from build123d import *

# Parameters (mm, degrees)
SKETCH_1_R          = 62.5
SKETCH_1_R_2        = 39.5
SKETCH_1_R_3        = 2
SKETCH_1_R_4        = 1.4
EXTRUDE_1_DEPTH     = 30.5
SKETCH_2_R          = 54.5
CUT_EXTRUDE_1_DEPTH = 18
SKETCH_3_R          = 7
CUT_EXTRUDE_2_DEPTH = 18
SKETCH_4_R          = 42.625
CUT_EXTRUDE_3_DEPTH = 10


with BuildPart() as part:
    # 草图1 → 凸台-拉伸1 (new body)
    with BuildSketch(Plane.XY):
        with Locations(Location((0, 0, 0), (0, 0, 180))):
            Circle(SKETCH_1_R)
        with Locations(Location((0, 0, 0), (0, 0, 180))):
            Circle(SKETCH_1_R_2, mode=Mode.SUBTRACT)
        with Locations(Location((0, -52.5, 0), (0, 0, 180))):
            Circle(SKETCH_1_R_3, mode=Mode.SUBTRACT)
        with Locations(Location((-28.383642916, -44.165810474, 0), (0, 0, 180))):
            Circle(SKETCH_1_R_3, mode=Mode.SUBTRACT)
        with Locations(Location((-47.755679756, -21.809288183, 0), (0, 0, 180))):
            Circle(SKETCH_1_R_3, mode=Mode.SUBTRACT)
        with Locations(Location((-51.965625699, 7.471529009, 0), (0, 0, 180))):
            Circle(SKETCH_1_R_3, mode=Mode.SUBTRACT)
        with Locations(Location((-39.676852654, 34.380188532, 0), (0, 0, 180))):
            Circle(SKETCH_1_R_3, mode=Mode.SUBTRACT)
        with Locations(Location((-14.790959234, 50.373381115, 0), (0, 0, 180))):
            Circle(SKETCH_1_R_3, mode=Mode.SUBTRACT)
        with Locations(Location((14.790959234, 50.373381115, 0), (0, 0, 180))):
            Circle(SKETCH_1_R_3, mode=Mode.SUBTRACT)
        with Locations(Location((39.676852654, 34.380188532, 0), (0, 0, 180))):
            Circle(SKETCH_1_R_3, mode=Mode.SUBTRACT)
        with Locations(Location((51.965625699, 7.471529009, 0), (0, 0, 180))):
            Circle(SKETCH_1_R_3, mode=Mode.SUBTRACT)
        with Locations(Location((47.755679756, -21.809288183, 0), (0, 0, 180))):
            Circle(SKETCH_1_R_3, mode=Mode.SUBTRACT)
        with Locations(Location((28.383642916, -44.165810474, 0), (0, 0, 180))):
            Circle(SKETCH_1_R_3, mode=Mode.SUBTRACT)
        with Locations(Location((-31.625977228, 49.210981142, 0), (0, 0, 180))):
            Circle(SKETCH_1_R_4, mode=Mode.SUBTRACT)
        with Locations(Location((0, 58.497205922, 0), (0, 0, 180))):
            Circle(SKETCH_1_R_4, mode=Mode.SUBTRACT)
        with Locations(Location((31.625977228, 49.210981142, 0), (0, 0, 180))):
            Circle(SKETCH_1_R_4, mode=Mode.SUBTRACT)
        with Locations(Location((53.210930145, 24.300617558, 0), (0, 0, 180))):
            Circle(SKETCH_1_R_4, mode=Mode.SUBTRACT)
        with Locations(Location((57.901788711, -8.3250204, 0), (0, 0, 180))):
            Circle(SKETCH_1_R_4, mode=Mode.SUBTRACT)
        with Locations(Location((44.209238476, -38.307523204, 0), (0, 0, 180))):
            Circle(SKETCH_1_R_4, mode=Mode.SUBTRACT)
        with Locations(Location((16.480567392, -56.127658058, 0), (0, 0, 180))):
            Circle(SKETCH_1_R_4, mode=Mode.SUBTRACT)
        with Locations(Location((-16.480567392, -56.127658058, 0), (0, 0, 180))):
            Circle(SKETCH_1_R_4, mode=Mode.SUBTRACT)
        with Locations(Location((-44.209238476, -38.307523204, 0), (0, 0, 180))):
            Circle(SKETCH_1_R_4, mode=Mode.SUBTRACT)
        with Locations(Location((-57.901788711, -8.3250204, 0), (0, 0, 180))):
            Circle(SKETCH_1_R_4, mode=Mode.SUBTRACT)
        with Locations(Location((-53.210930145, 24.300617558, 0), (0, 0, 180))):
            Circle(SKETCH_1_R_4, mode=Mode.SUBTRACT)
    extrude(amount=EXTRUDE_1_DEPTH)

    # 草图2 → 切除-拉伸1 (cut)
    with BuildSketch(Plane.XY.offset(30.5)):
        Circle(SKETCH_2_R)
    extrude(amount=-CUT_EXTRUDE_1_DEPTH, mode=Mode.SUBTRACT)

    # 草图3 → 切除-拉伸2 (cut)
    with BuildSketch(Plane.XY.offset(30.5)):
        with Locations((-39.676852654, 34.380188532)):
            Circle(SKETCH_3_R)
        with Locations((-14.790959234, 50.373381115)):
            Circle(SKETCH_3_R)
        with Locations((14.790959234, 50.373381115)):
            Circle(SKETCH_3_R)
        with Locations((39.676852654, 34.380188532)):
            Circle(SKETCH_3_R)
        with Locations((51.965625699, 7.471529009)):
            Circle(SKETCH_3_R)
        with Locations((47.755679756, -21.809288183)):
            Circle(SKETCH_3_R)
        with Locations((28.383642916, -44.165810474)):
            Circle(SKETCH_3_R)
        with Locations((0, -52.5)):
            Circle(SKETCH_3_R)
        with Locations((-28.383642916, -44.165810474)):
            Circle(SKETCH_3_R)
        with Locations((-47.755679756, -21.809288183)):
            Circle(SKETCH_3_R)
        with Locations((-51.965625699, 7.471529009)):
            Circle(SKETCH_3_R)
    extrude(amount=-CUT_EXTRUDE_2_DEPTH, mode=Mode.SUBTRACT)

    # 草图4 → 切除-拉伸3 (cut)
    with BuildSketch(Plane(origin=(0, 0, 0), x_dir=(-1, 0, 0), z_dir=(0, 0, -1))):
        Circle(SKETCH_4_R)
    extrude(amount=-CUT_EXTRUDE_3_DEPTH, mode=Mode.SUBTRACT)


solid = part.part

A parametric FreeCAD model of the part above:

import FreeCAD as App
import Part
import Sketcher
from FreeCAD import Vector

doc = App.newDocument("Part")
body = doc.addObject("PartDesign::Body", "Body")

# Sketch on XY plane
sketch1 = doc.addObject("Sketcher::SketchObject", "Sketch")
body.addObject(sketch1)
sketch1.AttachmentSupport = (doc.XY_Plane, [""])
sketch1.MapMode = "FlatFace"
sketch1.addGeometry([
    Part.Circle(Vector(0, 0, 0), Vector(0, 0, 1), 62.5),  # 0
    Part.Circle(Vector(31.6, 49.2, 0), Vector(0, 0, 1), 1.4),  # 1
    Part.Circle(Vector(39.7, 34.4, 0), Vector(0, 0, 1), 2),  # 2
    Part.Circle(Vector(14.8, 50.4, 0), Vector(0, 0, 1), 2),  # 3
    Part.Circle(Vector(53.2, 24.3, 0), Vector(0, 0, 1), 1.4),  # 4
    Part.Circle(Vector(52, 7.5, 0), Vector(0, 0, 1), 2),  # 5
    Part.Circle(Vector(0, 58.5, 0), Vector(0, 0, 1), 1.4),  # 6
    Part.Circle(Vector(-14.8, 50.4, 0), Vector(0, 0, 1), 2),  # 7
    Part.Circle(Vector(-31.6, 49.2, 0), Vector(0, 0, 1), 1.4),  # 8
    Part.Circle(Vector(-39.7, 34.4, 0), Vector(0, 0, 1), 2),  # 9
    Part.Circle(Vector(-53.2, 24.3, 0), Vector(0, 0, 1), 1.4),  # 10
    Part.Circle(Vector(-52, 7.5, 0), Vector(0, 0, 1), 2),  # 11
    Part.Circle(Vector(57.9, -8.3, 0), Vector(0, 0, 1), 1.4),  # 12
    Part.Circle(Vector(47.8, -21.8, 0), Vector(0, 0, 1), 2),  # 13
    Part.Circle(Vector(44.2, -38.3, 0), Vector(0, 0, 1), 1.4),  # 14
    Part.Circle(Vector(28.4, -44.2, 0), Vector(0, 0, 1), 2),  # 15
    Part.Circle(Vector(16.5, -56.1, 0), Vector(0, 0, 1), 1.4),  # 16
    Part.Circle(Vector(0, 0, 0), Vector(0, 0, 1), 39.5),  # 17
    Part.Circle(Vector(-57.9, -8.3, 0), Vector(0, 0, 1), 1.4),  # 18
    Part.Circle(Vector(-47.8, -21.8, 0), Vector(0, 0, 1), 2),  # 19
    Part.Circle(Vector(0, -52.5, 0), Vector(0, 0, 1), 2),  # 20
    Part.Circle(Vector(-28.4, -44.2, 0), Vector(0, 0, 1), 2),  # 21
    Part.Circle(Vector(-16.5, -56.1, 0), Vector(0, 0, 1), 1.4),  # 22
    Part.Circle(Vector(-44.2, -38.3, 0), Vector(0, 0, 1), 1.4),  # 23
], False)
sketch1.addConstraint([
    Sketcher.Constraint("Coincident", 0, 3, -1, 1),
    Sketcher.Constraint("Coincident", 17, 3, -1, 1),
    Sketcher.Constraint("Equal", 2, 3),
    Sketcher.Constraint("Equal", 1, 4),
    Sketcher.Constraint("Equal", 3, 5),
    Sketcher.Constraint("Equal", 4, 6),
    Sketcher.Constraint("Equal", 5, 7),
    Sketcher.Constraint("Equal", 6, 8),
    Sketcher.Constraint("Equal", 7, 9),
    Sketcher.Constraint("Equal", 8, 10),
    Sketcher.Constraint("Equal", 9, 11),
    Sketcher.Constraint("Equal", 10, 12),
    Sketcher.Constraint("Equal", 11, 13),
    Sketcher.Constraint("Equal", 12, 14),
    Sketcher.Constraint("Equal", 13, 15),
    Sketcher.Constraint("Equal", 14, 16),
    Sketcher.Constraint("Equal", 16, 18),
    Sketcher.Constraint("Equal", 15, 19),
    Sketcher.Constraint("Equal", 19, 20),
    Sketcher.Constraint("Equal", 20, 21),
    Sketcher.Constraint("Equal", 18, 22),
    Sketcher.Constraint("Equal", 22, 23),
    Sketcher.Constraint("Symmetric", 3, 3, 7, 3, -2),
    Sketcher.Constraint("Symmetric", 1, 3, 8, 3, -2),
    Sketcher.Constraint("Symmetric", 2, 3, 9, 3, -2),
    Sketcher.Constraint("Symmetric", 4, 3, 10, 3, -2),
    Sketcher.Constraint("Symmetric", 5, 3, 11, 3, -2),
    Sketcher.Constraint("Symmetric", 12, 3, 18, 3, -2),
    Sketcher.Constraint("Symmetric", 13, 3, 19, 3, -2),
    Sketcher.Constraint("Symmetric", 15, 3, 21, 3, -2),
    Sketcher.Constraint("Symmetric", 16, 3, 22, 3, -2),
    Sketcher.Constraint("Symmetric", 14, 3, 23, 3, -2),
    Sketcher.Constraint("PointOnObject", 6, 3, -2),
    Sketcher.Constraint("PointOnObject", 20, 3, -2),
    Sketcher.Constraint("Diameter", 0, 125.0),
    Sketcher.Constraint("Diameter", 2, 4.0),
    Sketcher.Constraint("Diameter", 17, 79.0),
    Sketcher.Constraint("Diameter", 1, 2.8),
    Sketcher.Constraint("DistanceY", 20, 3, -1, 1, 52.5),
    Sketcher.Constraint("DistanceY", 12, 3, 1, 3, 57.536002),
    Sketcher.Constraint("DistanceY", 1, 3, 3, 3, 1.1624),
    Sketcher.Constraint("DistanceY", -1, 1, 1, 3, 49.210981),
    Sketcher.Constraint("DistanceY", -1, 1, 2, 3, 34.380189),
    Sketcher.Constraint("DistanceX", -1, 1, 3, 3, 14.790959),
    Sketcher.Constraint("DistanceX", -1, 1, 4, 3, 53.21093),
    Sketcher.Constraint("DistanceY", -1, 1, 5, 3, 7.471529),
    Sketcher.Constraint("DistanceX", -1, 1, 12, 3, 57.901789),
    Sketcher.Constraint("DistanceX", -1, 1, 13, 3, 47.75568),
    Sketcher.Constraint("DistanceY", 13, 3, -1, 1, 21.809288),
    Sketcher.Constraint("DistanceX", -1, 1, 14, 3, 44.209238),
    Sketcher.Constraint("DistanceY", 15, 3, -1, 1, 44.16581),
    Sketcher.Constraint("DistanceY", 16, 3, -1, 1, 56.127658),
    Sketcher.Constraint("DistanceY", 4, 3, 2, 3, 10.079571),
    Sketcher.Constraint("DistanceX", 1, 3, 5, 3, 20.339648),
    Sketcher.Constraint("DistanceY", 4, 3, 6, 3, 34.196588),
    Sketcher.Constraint("DistanceX", 7, 3, 2, 3, 54.467812),
    Sketcher.Constraint("DistanceX", 1, 3, 12, 3, 26.275811),
    Sketcher.Constraint("DistanceY", 14, 3, 4, 3, 62.608141),
    Sketcher.Constraint("DistanceX", 16, 3, 14, 3, 27.728671),
    Sketcher.Constraint("DistanceX", 21, 3, 16, 3, 44.86421),
])
pad1 = doc.addObject("PartDesign::Pad", "Pad")
body.addObject(pad1)
pad1.Profile = sketch1
pad1.Length = 30.5

# Sketch on XY plane
sketch2 = doc.addObject("Sketcher::SketchObject", "Sketch001")
body.addObject(sketch2)
sketch2.AttachmentSupport = (doc.XY_Plane, [""])
sketch2.MapMode = "FlatFace"
sketch2.AttachmentOffset = App.Placement(Vector(0, 0, 30.5), App.Rotation())
sketch2.addGeometry(Part.Circle(Vector(0, 0, 0), Vector(0, 0, 1), 54), False)
sketch2.addConstraint([
    Sketcher.Constraint("Coincident", 0, 3, -1, 1),
    Sketcher.Constraint("Diameter", 0, 109.0),
])
pocket1 = doc.addObject("PartDesign::Pocket", "Pocket")
body.addObject(pocket1)
pocket1.Profile = sketch2
pocket1.Length = 18

# Sketch on XY plane
sketch3 = doc.addObject("Sketcher::SketchObject", "Sketch002")
body.addObject(sketch3)
sketch3.AttachmentSupport = (doc.XY_Plane, [""])
sketch3.MapMode = "FlatFace"
sketch3.AttachmentOffset = App.Placement(Vector(0, 0, 30.5), App.Rotation())
sketch3.addGeometry([
    Part.Circle(Vector(-40, 34, 0), Vector(0, 0, 1), 7),  # 0
    Part.Circle(Vector(-15, 50, 0), Vector(0, 0, 1), 7),  # 1
    Part.Circle(Vector(15, 50, 0), Vector(0, 0, 1), 7),  # 2
    Part.Circle(Vector(40, 34, 0), Vector(0, 0, 1), 7),  # 3
    Part.Circle(Vector(52, 7, 0), Vector(0, 0, 1), 7),  # 4
    Part.Circle(Vector(48, -22, 0), Vector(0, 0, 1), 7),  # 5
    Part.Circle(Vector(28, -44, 0), Vector(0, 0, 1), 7),  # 6
    Part.Circle(Vector(0, -52, 0), Vector(0, 0, 1), 7),  # 7
    Part.Circle(Vector(-28, -44, 0), Vector(0, 0, 1), 7),  # 8
    Part.Circle(Vector(-48, -22, 0), Vector(0, 0, 1), 7),  # 9
    Part.Circle(Vector(-52, 7, 0), Vector(0, 0, 1), 7),  # 10
], False)
sketch3.addConstraint([
    Sketcher.Constraint("Equal", 0, 1),
    Sketcher.Constraint("Equal", 1, 2),
    Sketcher.Constraint("Equal", 2, 3),
    Sketcher.Constraint("Equal", 3, 4),
    Sketcher.Constraint("Equal", 4, 5),
    Sketcher.Constraint("Equal", 5, 6),
    Sketcher.Constraint("Equal", 6, 7),
    Sketcher.Constraint("Equal", 7, 8),
    Sketcher.Constraint("Equal", 8, 9),
    Sketcher.Constraint("Equal", 9, 10),
    Sketcher.Constraint("Symmetric", 1, 3, 2, 3, -2),
    Sketcher.Constraint("Symmetric", 0, 3, 3, 3, -2),
    Sketcher.Constraint("Symmetric", 6, 3, 8, 3, -2),
    Sketcher.Constraint("Symmetric", 5, 3, 9, 3, -2),
    Sketcher.Constraint("Symmetric", 4, 3, 10, 3, -2),
    Sketcher.Constraint("PointOnObject", 7, 3, -2),
    Sketcher.Constraint("Diameter", 0, 14.0),
    Sketcher.Constraint("DistanceY", 7, 3, -1, 1, 52.5),
    Sketcher.Constraint("DistanceY", 6, 3, 3, 3, 78.545999),
    Sketcher.Constraint("DistanceY", -1, 1, 0, 3, 34.380189),
    Sketcher.Constraint("DistanceX", 1, 3, -1, 1, 14.790959),
    Sketcher.Constraint("DistanceY", -1, 1, 1, 3, 50.373381),
    Sketcher.Constraint("DistanceY", -1, 1, 4, 3, 7.471529),
    Sketcher.Constraint("DistanceX", -1, 1, 5, 3, 47.75568),
    Sketcher.Constraint("DistanceY", 5, 3, -1, 1, 21.809288),
    Sketcher.Constraint("DistanceX", 0, 3, 2, 3, 54.467812),
    Sketcher.Constraint("DistanceX", 0, 3, 4, 3, 91.642478),
    Sketcher.Constraint("DistanceX", 6, 3, 3, 3, 11.29321),
])
pocket2 = doc.addObject("PartDesign::Pocket", "Pocket001")
body.addObject(pocket2)
pocket2.Profile = sketch3
pocket2.Length = 18

# Sketch on XY plane
sketch4 = doc.addObject("Sketcher::SketchObject", "Sketch003")
body.addObject(sketch4)
sketch4.AttachmentSupport = (doc.XY_Plane, [""])
sketch4.MapMode = "FlatFace"
sketch4.addGeometry(Part.Circle(Vector(0, 0, 0), Vector(0, 0, 1), 43), False)
sketch4.addConstraint([
    Sketcher.Constraint("Coincident", 0, 3, -1, 1),
    Sketcher.Constraint("Diameter", 0, 85.25),
])
pocket3 = doc.addObject("PartDesign::Pocket", "Pocket002")
body.addObject(pocket3)
pocket3.Profile = sketch4
pocket3.Length = 10
pocket3.Reversed = True

doc.recompute()
